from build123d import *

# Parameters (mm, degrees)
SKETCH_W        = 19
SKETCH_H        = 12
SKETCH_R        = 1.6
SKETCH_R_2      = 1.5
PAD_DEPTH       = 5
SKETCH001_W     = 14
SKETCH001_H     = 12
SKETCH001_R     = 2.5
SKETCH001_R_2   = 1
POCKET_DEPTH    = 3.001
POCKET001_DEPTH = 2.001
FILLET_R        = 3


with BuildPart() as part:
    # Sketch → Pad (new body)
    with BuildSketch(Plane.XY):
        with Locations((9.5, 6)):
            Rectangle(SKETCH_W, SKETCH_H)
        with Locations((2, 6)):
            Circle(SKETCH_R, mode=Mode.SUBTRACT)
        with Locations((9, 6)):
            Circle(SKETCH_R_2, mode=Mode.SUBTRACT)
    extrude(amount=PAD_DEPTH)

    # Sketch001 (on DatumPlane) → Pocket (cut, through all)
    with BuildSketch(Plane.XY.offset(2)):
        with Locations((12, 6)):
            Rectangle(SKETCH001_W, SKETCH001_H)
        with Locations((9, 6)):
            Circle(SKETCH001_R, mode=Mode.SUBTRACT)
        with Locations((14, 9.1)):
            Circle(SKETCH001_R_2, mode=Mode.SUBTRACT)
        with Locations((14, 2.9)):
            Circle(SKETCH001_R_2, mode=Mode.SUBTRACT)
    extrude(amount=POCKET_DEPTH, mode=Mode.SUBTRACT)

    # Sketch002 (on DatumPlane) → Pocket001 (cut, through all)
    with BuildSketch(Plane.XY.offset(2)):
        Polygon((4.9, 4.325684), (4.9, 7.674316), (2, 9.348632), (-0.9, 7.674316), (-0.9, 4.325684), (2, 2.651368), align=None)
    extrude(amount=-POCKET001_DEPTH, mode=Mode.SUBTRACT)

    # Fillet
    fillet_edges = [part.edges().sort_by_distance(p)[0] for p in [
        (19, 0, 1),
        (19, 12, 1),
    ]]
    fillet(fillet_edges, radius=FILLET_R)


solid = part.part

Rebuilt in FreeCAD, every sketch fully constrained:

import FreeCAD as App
import Part
import Sketcher

V = App.Vector
Q = App.Units.Quantity


def edges_at(feature, points):
    """Names of the edges that pass closest to the given points."""
    edges = feature.Shape.Edges
    near = lambda p: min(range(len(edges)), key=lambda i: edges[i].distToShape(Part.Vertex(*p))[0])
    return sorted({f"Edge{near(p) + 1}" for p in points})

doc = App.newDocument("Part")
body = doc.addObject("PartDesign::Body", "Body")

sketch1 = doc.addObject("Sketcher::SketchObject", "Sketch")
body.addObject(sketch1)
sketch1.AttachmentSupport = (doc.XY_Plane, [""])
sketch1.MapMode = "FlatFace"
sketch1.addGeometry(Part.LineSegment(V(0, 12, 0), V(0, 0, 0)), False)
sketch1.addGeometry(Part.LineSegment(V(0, 0, 0), V(19, 0, 0)), False)
sketch1.addGeometry(Part.LineSegment(V(19, 0, 0), V(19, 12, 0)), False)
sketch1.addGeometry(Part.LineSegment(V(19, 12, 0), V(0, 12, 0)), False)
sketch1.addGeometry(Part.Circle(V(2, 6, 0), V(0, 0, 1), 1.6), False)
sketch1.addGeometry(Part.Circle(V(9, 6, 0), V(0, 0, 1), 1.5), False)
sketch1.addConstraint(Sketcher.Constraint("Coincident", 0, 2, 1, 1))
sketch1.addConstraint(Sketcher.Constraint("Coincident", 1, 2, 2, 1))
sketch1.addConstraint(Sketcher.Constraint("Coincident", 2, 2, 3, 1))
sketch1.addConstraint(Sketcher.Constraint("Coincident", 3, 2, 0, 1))
sketch1.addConstraint(Sketcher.Constraint("Vertical", 0))
sketch1.addConstraint(Sketcher.Constraint("Horizontal", 1))
sketch1.addConstraint(Sketcher.Constraint("Vertical", 2))
sketch1.addConstraint(Sketcher.Constraint("Horizontal", 3))
sketch1.addConstraint(Sketcher.Constraint("Coincident", 0, 2, -1, 1))
sketch1.addConstraint(Sketcher.Constraint("Horizontal", 4, 3, 5, 3))
sketch1.addConstraint(Sketcher.Constraint("Diameter", 5, Q("3 mm")))
sketch1.addConstraint(Sketcher.Constraint("Diameter", 4, Q("3.2 mm")))
sketch1.addConstraint(Sketcher.Constraint("DistanceX", 1, 1, 1, 2, Q("19 mm")))
sketch1.addConstraint(Sketcher.Constraint("DistanceY", 0, 2, 0, 1, Q("12 mm")))
sketch1.addConstraint(Sketcher.Constraint("DistanceX", -1, 1, 4, 3, Q("2 mm")))
sketch1.addConstraint(Sketcher.Constraint("DistanceY", -1, 1, 4, 3, Q("6 mm")))
sketch1.addConstraint(Sketcher.Constraint("DistanceX", -1, 1, 5, 3, Q("9 mm")))
pad1 = doc.addObject("PartDesign::Pad", "Pad")
body.addObject(pad1)
pad1.Profile = sketch1
pad1.Length = 5

sketch2 = doc.addObject("Sketcher::SketchObject", "Sketch001")
body.addObject(sketch2)
sketch2.AttachmentSupport = (doc.XY_Plane, [""])
sketch2.MapMode = "FlatFace"
sketch2.AttachmentOffset = App.Placement(V(0, 0, 2), App.Rotation())
sketch2.addGeometry(Part.LineSegment(V(5, 12, 0), V(5, 0, 0)), False)
sketch2.addGeometry(Part.LineSegment(V(5, 0, 0), V(19, 0, 0)), False)
sketch2.addGeometry(Part.LineSegment(V(19, 0, 0), V(19, 12, 0)), False)
sketch2.addGeometry(Part.LineSegment(V(19, 12, 0), V(5, 12, 0)), False)
sketch2.addGeometry(Part.Circle(V(14, 2.9, 0), V(0, 0, 1), 1), False)
sketch2.addGeometry(Part.Circle(V(9, 6, 0), V(0, 0, 1), 2.5), False)
sketch2.addGeometry(Part.Circle(V(14, 9.1, 0), V(0, 0, 1), 1), False)
sketch2.addConstraint(Sketcher.Constraint("Coincident", 0, 2, 1, 1))
sketch2.addConstraint(Sketcher.Constraint("Coincident", 1, 2, 2, 1))
sketch2.addConstraint(Sketcher.Constraint("Coincident", 2, 2, 3, 1))
sketch2.addConstraint(Sketcher.Constraint("Coincident", 3, 2, 0, 1))
sketch2.addConstraint(Sketcher.Constraint("Vertical", 0))
sketch2.addConstraint(Sketcher.Constraint("Horizontal", 1))
sketch2.addConstraint(Sketcher.Constraint("Vertical", 2))
sketch2.addConstraint(Sketcher.Constraint("Horizontal", 3))
sketch2.addConstraint(Sketcher.Constraint("Equal", 4, 6))
sketch2.addConstraint(Sketcher.Constraint("PointOnObject", 0, 2, -1))
sketch2.addConstraint(Sketcher.Constraint("Vertical", 4, 3, 6, 3))
sketch2.addConstraint(Sketcher.Constraint("Diameter", 4, Q("2 mm")))
sketch2.addConstraint(Sketcher.Constraint("Diameter", 5, Q("5 mm")))
sketch2.addConstraint(Sketcher.Constraint("DistanceX", 1, 1, 1, 2, Q("14 mm")))
sketch2.addConstraint(Sketcher.Constraint("DistanceY", 0, 2, 0, 1, Q("12 mm")))
sketch2.addConstraint(Sketcher.Constraint("DistanceX", -1, 1, 4, 3, Q("14 mm")))
sketch2.addConstraint(Sketcher.Constraint("DistanceX", -1, 1, 5, 3, Q("9 mm")))
sketch2.addConstraint(Sketcher.Constraint("DistanceY", -1, 1, 5, 3, Q("6 mm")))
sketch2.addConstraint(Sketcher.Constraint("DistanceX", -1, 1, 0, 2, Q("5 mm")))
sketch2.addConstraint(Sketcher.Constraint("DistanceY", -1, 1, 4, 3, Q("2.9 mm")))
sketch2.addConstraint(Sketcher.Constraint("DistanceY", -1, 1, 6, 3, Q("9.1 mm")))
pocket1 = doc.addObject("PartDesign::Pocket", "Pocket")
body.addObject(pocket1)
pocket1.Profile = sketch2
pocket1.Type = "ThroughAll"
pocket1.Reversed = True

sketch3 = doc.addObject("Sketcher::SketchObject", "Sketch002")
body.addObject(sketch3)
sketch3.AttachmentSupport = (doc.XY_Plane, [""])
sketch3.MapMode = "FlatFace"
sketch3.AttachmentOffset = App.Placement(V(0, 0, 2), App.Rotation())
sketch3.addGeometry(Part.LineSegment(V(4.9, 4.325684, 0), V(4.9, 7.674316, 0)), False)
sketch3.addGeometry(Part.LineSegment(V(4.9, 7.674316, 0), V(2, 9.348632, 0)), False)
sketch3.addGeometry(Part.LineSegment(V(2, 9.348632, 0), V(-0.9, 7.674316, 0)), False)
sketch3.addGeometry(Part.LineSegment(V(-0.9, 7.674316, 0), V(-0.9, 4.325684, 0)), False)
sketch3.addGeometry(Part.LineSegment(V(-0.9, 4.325684, 0), V(2, 2.651368, 0)), False)
sketch3.addGeometry(Part.LineSegment(V(2, 2.651368, 0), V(4.9, 4.325684, 0)), False)
sketch3.addConstraint(Sketcher.Constraint("Coincident", 0, 2, 1, 1))
sketch3.addConstraint(Sketcher.Constraint("Coincident", 1, 2, 2, 1))
sketch3.addConstraint(Sketcher.Constraint("Coincident", 2, 2, 3, 1))
sketch3.addConstraint(Sketcher.Constraint("Coincident", 3, 2, 4, 1))
sketch3.addConstraint(Sketcher.Constraint("Coincident", 4, 2, 5, 1))
sketch3.addConstraint(Sketcher.Constraint("Coincident", 5, 2, 0, 1))
sketch3.addConstraint(Sketcher.Constraint("Vertical", 0))
sketch3.addConstraint(Sketcher.Constraint("Vertical", 3))
sketch3.addConstraint(Sketcher.Constraint("Parallel", 1, 4))
sketch3.addConstraint(Sketcher.Constraint("Parallel", 2, 5))
sketch3.addConstraint(Sketcher.Constraint("Horizontal", 0, 2, 2, 2))
sketch3.addConstraint(Sketcher.Constraint("Horizontal", 3, 2, 5, 2))
sketch3.addConstraint(Sketcher.Constraint("Vertical", 1, 2, 4, 2))
sketch3.addConstraint(Sketcher.Constraint("Angle", 1, Q("149.999997 deg")))
sketch3.addConstraint(Sketcher.Constraint("DistanceX", -1, 1, 1, 2, Q("2 mm")))
sketch3.addConstraint(Sketcher.Constraint("DistanceX", -1, 1, 0, 2, Q("4.9 mm")))
sketch3.addConstraint(Sketcher.Constraint("DistanceY", 0, 1, 0, 2, Q("3.348632 mm")))
sketch3.addConstraint(Sketcher.Constraint("DistanceY", -1, 1, 4, 2, Q("2.651368 mm")))
pocket2 = doc.addObject("PartDesign::Pocket", "Pocket001")
body.addObject(pocket2)
pocket2.Profile = sketch3
pocket2.Type = "ThroughAll"
doc.recompute()

fillet = doc.addObject("PartDesign::Fillet", "Fillet")
body.addObject(fillet)
fillet.Base = (pocket2, edges_at(pocket2, [(19, 0, 1), (19, 12, 1)]))
fillet.Radius = 3

doc.recompute()
